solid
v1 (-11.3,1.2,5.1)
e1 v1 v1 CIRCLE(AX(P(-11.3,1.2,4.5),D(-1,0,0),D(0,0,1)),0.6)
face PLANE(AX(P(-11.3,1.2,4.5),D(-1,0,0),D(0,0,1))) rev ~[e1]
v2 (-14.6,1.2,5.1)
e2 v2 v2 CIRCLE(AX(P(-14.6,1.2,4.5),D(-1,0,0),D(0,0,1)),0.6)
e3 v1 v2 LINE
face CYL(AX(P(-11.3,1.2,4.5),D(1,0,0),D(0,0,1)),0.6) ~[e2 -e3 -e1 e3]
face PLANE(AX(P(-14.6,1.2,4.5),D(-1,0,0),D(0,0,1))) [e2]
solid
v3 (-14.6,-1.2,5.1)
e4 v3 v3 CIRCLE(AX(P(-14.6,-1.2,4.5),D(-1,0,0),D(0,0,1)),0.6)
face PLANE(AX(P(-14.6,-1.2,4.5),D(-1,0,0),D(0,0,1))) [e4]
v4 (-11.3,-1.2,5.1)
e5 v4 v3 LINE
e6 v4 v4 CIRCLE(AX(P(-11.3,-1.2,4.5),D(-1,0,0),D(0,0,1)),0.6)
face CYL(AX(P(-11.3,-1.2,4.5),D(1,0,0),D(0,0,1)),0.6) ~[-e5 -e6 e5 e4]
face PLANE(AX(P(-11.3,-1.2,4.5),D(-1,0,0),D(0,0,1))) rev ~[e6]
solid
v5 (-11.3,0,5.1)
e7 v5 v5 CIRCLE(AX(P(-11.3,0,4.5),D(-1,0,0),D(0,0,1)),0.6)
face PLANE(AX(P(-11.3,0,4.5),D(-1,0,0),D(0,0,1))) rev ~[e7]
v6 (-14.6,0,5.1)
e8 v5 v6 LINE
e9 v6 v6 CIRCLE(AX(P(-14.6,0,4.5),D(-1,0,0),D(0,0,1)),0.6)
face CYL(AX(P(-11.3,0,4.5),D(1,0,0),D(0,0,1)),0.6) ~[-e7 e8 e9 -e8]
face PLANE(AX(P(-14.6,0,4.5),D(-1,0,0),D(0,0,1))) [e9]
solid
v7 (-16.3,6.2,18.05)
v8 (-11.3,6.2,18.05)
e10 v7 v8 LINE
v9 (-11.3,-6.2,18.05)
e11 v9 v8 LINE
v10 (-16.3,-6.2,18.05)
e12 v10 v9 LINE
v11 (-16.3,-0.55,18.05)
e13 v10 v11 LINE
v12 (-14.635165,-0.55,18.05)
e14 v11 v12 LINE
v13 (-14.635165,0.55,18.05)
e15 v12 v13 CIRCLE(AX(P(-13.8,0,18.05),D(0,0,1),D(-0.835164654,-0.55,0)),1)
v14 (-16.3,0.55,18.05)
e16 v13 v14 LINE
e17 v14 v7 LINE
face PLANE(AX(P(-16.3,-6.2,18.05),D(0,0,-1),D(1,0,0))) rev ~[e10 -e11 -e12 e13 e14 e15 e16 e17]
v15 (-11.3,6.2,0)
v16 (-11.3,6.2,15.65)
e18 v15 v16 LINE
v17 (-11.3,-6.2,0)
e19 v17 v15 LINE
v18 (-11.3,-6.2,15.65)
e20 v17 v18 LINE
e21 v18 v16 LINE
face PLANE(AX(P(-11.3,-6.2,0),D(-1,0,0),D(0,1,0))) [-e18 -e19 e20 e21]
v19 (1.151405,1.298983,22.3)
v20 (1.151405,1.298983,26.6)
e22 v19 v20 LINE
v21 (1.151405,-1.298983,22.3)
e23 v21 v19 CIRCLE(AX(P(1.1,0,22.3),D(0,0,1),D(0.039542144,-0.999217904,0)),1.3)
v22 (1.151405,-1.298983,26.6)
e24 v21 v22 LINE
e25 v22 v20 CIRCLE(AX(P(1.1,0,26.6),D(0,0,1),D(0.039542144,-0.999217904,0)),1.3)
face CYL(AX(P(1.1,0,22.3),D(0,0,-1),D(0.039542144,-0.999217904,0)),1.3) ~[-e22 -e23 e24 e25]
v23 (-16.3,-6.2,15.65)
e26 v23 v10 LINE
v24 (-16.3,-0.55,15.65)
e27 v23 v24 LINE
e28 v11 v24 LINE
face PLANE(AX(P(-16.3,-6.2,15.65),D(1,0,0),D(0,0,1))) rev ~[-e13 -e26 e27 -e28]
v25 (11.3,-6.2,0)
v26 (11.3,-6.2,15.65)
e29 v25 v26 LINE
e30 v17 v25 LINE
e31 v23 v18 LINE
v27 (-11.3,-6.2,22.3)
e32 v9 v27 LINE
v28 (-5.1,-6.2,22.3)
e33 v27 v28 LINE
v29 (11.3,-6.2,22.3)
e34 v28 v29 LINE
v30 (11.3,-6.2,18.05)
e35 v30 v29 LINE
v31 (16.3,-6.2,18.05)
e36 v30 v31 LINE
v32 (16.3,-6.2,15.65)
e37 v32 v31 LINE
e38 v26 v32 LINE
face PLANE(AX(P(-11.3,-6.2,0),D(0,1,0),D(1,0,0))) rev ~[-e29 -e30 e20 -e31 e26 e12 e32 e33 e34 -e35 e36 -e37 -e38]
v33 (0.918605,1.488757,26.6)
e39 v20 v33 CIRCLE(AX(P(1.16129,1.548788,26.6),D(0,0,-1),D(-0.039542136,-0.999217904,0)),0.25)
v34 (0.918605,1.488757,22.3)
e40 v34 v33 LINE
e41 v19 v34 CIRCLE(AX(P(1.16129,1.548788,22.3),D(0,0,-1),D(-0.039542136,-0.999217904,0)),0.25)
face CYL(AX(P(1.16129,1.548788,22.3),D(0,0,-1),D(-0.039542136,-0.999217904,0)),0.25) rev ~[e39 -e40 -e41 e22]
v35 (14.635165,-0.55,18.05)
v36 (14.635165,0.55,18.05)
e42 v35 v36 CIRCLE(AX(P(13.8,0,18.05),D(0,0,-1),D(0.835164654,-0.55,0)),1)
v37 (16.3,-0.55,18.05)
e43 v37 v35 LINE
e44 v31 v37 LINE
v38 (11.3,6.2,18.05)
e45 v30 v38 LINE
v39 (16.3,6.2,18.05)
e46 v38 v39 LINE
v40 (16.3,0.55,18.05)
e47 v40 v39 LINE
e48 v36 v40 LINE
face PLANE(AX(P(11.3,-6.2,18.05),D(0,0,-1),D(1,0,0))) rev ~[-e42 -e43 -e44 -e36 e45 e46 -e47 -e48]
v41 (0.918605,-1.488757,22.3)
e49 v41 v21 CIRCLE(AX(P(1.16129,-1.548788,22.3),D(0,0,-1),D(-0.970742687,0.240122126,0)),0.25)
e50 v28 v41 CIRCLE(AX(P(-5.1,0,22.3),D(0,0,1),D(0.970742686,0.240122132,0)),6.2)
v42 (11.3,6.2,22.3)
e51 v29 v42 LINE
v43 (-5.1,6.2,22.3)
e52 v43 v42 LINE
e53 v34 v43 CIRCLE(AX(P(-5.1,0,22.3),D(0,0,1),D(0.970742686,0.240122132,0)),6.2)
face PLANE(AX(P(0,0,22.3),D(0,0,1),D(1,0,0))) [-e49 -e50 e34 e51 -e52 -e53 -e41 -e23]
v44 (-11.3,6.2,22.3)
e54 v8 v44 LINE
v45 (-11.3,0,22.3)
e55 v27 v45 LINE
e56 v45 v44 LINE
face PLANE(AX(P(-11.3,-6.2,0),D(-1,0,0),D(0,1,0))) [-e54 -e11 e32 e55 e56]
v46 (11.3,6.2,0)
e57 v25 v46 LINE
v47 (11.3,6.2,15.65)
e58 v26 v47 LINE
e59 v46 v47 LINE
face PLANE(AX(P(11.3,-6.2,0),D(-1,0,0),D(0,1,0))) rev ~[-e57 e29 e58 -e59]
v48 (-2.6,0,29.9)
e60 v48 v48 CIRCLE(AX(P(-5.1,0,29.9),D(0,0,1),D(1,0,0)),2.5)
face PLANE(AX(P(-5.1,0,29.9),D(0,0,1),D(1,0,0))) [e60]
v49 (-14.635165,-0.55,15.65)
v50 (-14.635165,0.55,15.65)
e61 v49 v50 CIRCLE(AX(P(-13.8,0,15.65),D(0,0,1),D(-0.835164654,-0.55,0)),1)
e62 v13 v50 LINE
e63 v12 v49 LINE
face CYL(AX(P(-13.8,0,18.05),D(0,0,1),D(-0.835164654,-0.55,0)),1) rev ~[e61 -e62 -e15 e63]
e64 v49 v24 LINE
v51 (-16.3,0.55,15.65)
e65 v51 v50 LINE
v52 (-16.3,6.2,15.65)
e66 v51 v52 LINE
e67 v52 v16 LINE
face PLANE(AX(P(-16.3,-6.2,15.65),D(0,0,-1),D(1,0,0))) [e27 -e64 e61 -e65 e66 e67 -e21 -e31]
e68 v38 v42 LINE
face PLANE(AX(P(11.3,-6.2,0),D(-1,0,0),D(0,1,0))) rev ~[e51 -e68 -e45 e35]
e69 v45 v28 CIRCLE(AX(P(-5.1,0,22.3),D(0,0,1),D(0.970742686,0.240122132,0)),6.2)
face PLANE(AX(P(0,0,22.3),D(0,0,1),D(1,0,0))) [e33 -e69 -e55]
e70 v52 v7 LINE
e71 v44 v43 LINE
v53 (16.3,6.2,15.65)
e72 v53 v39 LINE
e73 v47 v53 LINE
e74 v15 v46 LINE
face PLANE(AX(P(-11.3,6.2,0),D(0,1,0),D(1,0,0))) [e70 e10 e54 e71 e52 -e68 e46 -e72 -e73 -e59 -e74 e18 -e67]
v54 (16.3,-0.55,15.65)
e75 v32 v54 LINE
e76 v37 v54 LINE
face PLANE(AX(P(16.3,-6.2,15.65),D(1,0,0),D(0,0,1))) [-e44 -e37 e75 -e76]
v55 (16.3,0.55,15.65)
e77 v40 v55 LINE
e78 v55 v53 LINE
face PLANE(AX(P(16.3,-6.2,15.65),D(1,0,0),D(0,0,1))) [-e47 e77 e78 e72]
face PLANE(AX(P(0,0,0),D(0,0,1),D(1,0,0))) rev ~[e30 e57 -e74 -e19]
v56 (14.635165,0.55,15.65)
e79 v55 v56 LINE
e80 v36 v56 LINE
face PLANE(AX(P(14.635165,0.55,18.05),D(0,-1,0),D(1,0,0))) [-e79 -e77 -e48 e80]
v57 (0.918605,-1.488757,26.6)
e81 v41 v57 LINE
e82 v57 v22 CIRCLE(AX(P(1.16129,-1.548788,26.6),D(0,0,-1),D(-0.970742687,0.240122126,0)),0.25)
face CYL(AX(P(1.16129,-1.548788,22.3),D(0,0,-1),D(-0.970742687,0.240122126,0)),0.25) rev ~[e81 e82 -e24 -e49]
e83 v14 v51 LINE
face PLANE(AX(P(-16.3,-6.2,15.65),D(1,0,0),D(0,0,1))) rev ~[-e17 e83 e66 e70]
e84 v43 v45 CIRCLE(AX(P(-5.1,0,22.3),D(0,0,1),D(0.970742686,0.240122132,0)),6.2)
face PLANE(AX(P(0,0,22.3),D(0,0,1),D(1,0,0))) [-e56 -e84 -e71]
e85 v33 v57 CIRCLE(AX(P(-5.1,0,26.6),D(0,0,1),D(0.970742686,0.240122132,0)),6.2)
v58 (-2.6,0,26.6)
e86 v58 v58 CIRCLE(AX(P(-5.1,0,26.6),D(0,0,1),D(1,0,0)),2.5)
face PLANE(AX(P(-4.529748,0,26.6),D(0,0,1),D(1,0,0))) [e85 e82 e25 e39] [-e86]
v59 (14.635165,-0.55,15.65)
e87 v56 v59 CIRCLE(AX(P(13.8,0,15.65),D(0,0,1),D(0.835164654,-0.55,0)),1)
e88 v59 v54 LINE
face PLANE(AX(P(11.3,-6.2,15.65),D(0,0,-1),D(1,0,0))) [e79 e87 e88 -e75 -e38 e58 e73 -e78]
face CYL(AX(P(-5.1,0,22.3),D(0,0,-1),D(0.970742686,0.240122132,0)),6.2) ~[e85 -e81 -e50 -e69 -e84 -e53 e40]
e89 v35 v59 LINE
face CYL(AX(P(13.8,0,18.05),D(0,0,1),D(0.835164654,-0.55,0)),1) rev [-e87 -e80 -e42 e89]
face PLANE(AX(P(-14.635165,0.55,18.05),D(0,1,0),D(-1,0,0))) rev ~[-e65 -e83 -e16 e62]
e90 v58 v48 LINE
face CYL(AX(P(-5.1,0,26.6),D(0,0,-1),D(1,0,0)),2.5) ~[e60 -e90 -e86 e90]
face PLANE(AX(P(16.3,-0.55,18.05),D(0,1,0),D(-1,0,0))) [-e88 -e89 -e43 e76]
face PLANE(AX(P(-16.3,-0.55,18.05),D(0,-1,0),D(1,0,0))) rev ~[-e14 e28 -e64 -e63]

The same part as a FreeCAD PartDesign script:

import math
import FreeCAD as App
import Part
import Sketcher

doc = App.newDocument("Part")
body = doc.addObject("PartDesign::Body", "Body")

sketch1 = body.newObject("Sketcher::SketchObject", "Sketch")
sketch1.AttachmentSupport = (doc.getObject("XY_Plane"), [""])
sketch1.MapMode = "FlatFace"
sketch1.addGeometry([
    Part.LineSegment(App.Vector(-11, 6, 0), App.Vector(-11, -6, 0)),
    Part.LineSegment(App.Vector(-11, -6, 0), App.Vector(11, -6, 0)),
    Part.LineSegment(App.Vector(11, -6, 0), App.Vector(11, 6, 0)),
    Part.LineSegment(App.Vector(11, 6, 0), App.Vector(-11, 6, 0)),
], False)
sketch1.addConstraint([
    Sketcher.Constraint("Coincident", 0, 2, 1, 1),
    Sketcher.Constraint("Coincident", 1, 2, 2, 1),
    Sketcher.Constraint("Coincident", 2, 2, 3, 1),
    Sketcher.Constraint("Coincident", 3, 2, 0, 1),
    Sketcher.Constraint("Vertical", 0),
    Sketcher.Constraint("Horizontal", 1),
    Sketcher.Constraint("Vertical", 2),
    Sketcher.Constraint("Horizontal", 3),
    Sketcher.Constraint("Symmetric", 0, 2, 2, 2, -1, 1),
    Sketcher.Constraint("DistanceX", 1, 1, 1, 2, 22.6),
    Sketcher.Constraint("DistanceY", 0, 2, 0, 1, 12.4),
])
pad1 = body.newObject("PartDesign::Pad", "Pad")
pad1.Profile = sketch1
pad1.Length = 22.3

sketch2 = body.newObject("Sketcher::SketchObject", "Sketch001")
sketch2.AttachmentSupport = (doc.getObject("XZ_Plane"), [""])
sketch2.MapMode = "FlatFace"
sketch2.AttachmentOffset = App.Placement(App.Vector(0, 0, 6.2), App.Rotation())
sketch2.addGeometry([
    Part.LineSegment(App.Vector(11.3, 18.1, 0), App.Vector(11.3, 15.7, 0)),
    Part.LineSegment(App.Vector(11.3, 15.7, 0), App.Vector(16.3, 15.7, 0)),
    Part.LineSegment(App.Vector(16.3, 15.7, 0), App.Vector(16.3, 18.1, 0)),
    Part.LineSegment(App.Vector(16.3, 18.1, 0), App.Vector(11.3, 18.1, 0)),
    Part.LineSegment(App.Vector(-16.3, 18.1, 0), App.Vector(-16.3, 15.7, 0)),
    Part.LineSegment(App.Vector(-16.3, 15.7, 0), App.Vector(-11.3, 15.7, 0)),
    Part.LineSegment(App.Vector(-11.3, 15.7, 0), App.Vector(-11.3, 18.1, 0)),
    Part.LineSegment(App.Vector(-11.3, 18.1, 0), App.Vector(-16.3, 18.1, 0)),
], False)
sketch2.addConstraint([
    Sketcher.Constraint("Coincident", 0, 2, 1, 1),
    Sketcher.Constraint("Coincident", 1, 2, 2, 1),
    Sketcher.Constraint("Coincident", 2, 2, 3, 1),
    Sketcher.Constraint("Coincident", 3, 2, 0, 1),
    Sketcher.Constraint("Coincident", 4, 2, 5, 1),
    Sketcher.Constraint("Coincident", 5, 2, 6, 1),
    Sketcher.Constraint("Coincident", 6, 2, 7, 1),
    Sketcher.Constraint("Coincident", 7, 2, 4, 1),
    Sketcher.Constraint("Vertical", 0),
    Sketcher.Constraint("Horizontal", 1),
    Sketcher.Constraint("Vertical", 2),
    Sketcher.Constraint("Horizontal", 3),
    Sketcher.Constraint("Vertical", 4),
    Sketcher.Constraint("Horizontal", 5),
    Sketcher.Constraint("Vertical", 6),
    Sketcher.Constraint("Horizontal", 7),
    Sketcher.Constraint("Symmetric", 1, 2, 4, 2, -2),
    Sketcher.Constraint("Symmetric", 3, 2, 6, 2, -2),
    Sketcher.Constraint("DistanceX", 1, 1, 1, 2, 5.0),
    Sketcher.Constraint("DistanceY", 0, 2, 0, 1, 2.4),
    Sketcher.Constraint("DistanceX", -1, 1, 0, 2, 11.3),
    Sketcher.Constraint("DistanceY", -1, 1, 0, 2, 15.65),
])
pad2 = body.newObject("PartDesign::Pad", "Pad001")
pad2.Profile = sketch2
pad2.Length = 12.4
pad2.Reversed = True

sketch3 = body.newObject("Sketcher::SketchObject", "Sketch002")
sketch3.AttachmentSupport = (doc.getObject("XY_Plane"), [""])
sketch3.MapMode = "FlatFace"
sketch3.AttachmentOffset = App.Placement(App.Vector(0, 0, 18.05), App.Rotation())
sketch3.addGeometry([
    Part.LineSegment(App.Vector(16.3, 0.6, 0), App.Vector(14.6, 0.6, 0)),
    Part.ArcOfCircle(Part.Circle(App.Vector(13.8, 0, 0), App.Vector(0, 0, 1), 1), math.radians(33), math.radians(327)),
    Part.LineSegment(App.Vector(14.6, -0.6, 0), App.Vector(16.3, -0.6, 0)),
    Part.LineSegment(App.Vector(16.3, -0.6, 0), App.Vector(16.3, 0.6, 0)),
    Part.LineSegment(App.Vector(-16.3, -0.6, 0), App.Vector(-14.6, -0.6, 0)),
    Part.ArcOfCircle(Part.Circle(App.Vector(-13.8, 0, 0), App.Vector(0, 0, 1), 1), math.radians(-147), math.radians(147)),
    Part.LineSegment(App.Vector(-14.6, 0.6, 0), App.Vector(-16.3, 0.6, 0)),
    Part.LineSegment(App.Vector(-16.3, 0.6, 0), App.Vector(-16.3, -0.6, 0)),
], False)
sketch3.addConstraint([
    Sketcher.Constraint("Coincident", 0, 2, 1, 1),
    Sketcher.Constraint("Coincident", 1, 2, 2, 1),
    Sketcher.Constraint("Coincident", 2, 2, 3, 1),
    Sketcher.Constraint("Coincident", 3, 2, 0, 1),
    Sketcher.Constraint("Coincident", 4, 2, 5, 1),
    Sketcher.Constraint("Coincident", 5, 2, 6, 1),
    Sketcher.Constraint("Coincident", 6, 2, 7, 1),
    Sketcher.Constraint("Coincident", 7, 2, 4, 1),
    Sketcher.Constraint("Horizontal", 0),
    Sketcher.Constraint("Horizontal", 2),
    Sketcher.Constraint("Vertical", 3),
    Sketcher.Constraint("Horizontal", 4),
    Sketcher.Constraint("Horizontal", 6),
    Sketcher.Constraint("Vertical", 7),
    Sketcher.Constraint("Equal", 1, 5),
    Sketcher.Constraint("Symmetric", 1, 3, 5, 3, -1, 1),
    Sketcher.Constraint("Symmetric", 2, 2, 6, 2, -1, 1),
    Sketcher.Constraint("Symmetric", 1, 2, 4, 2, -2),
    Sketcher.Constraint("Horizontal", 3, 2, 5, 2),
    Sketcher.Constraint("Radius", 1, 1.0),
    Sketcher.Constraint("DistanceY", 3, 1, 3, 2, 1.1),
    Sketcher.Constraint("DistanceX", -1, 1, 1, 3, 13.8),
    Sketcher.Constraint("DistanceX", -1, 1, 2, 2, 16.3),
])
pocket1 = body.newObject("PartDesign::Pocket", "Pocket")
pocket1.Profile = sketch3
pocket1.Length = 22.3

sketch4 = body.newObject("Sketcher::SketchObject", "Sketch003")
sketch4.AttachmentSupport = (doc.getObject("XY_Plane"), [""])
sketch4.MapMode = "FlatFace"
sketch4.AttachmentOffset = App.Placement(App.Vector(0, 0, 22.3), App.Rotation())
sketch4.addGeometry([
    Part.ArcOfCircle(Part.Circle(App.Vector(-5.1, 0, 0), App.Vector(0, 0, 1), 6.2), math.radians(14), math.radians(346)),
    Part.ArcOfCircle(Part.Circle(App.Vector(1.16, -1.55, 0), App.Vector(0, 0, 1), 0.25), math.radians(92), math.radians(166)),
    Part.ArcOfCircle(Part.Circle(App.Vector(1.1, 0, 0), App.Vector(0, 0, 1), 1.3), math.radians(-88), math.radians(88)),
    Part.ArcOfCircle(Part.Circle(App.Vector(1.16, 1.55, 0), App.Vector(0, 0, 1), 0.25), math.radians(-166), math.radians(-92)),
], False)
sketch4.addConstraint([
    Sketcher.Constraint("Tangent", 0, 2, 1, 2),
    Sketcher.Constraint("Tangent", 1, 1, 2, 1),
    Sketcher.Constraint("Tangent", 2, 2, 3, 2),
    Sketcher.Constraint("Tangent", 3, 1, 0, 1),
    Sketcher.Constraint("Equal", 1, 3),
    Sketcher.Constraint("Symmetric", 1, 3, 3, 3, -1),
    Sketcher.Constraint("Radius", 0, 6.2),
    Sketcher.Constraint("Radius", 2, 1.3),
    Sketcher.Constraint("Radius", 1, 0.25),
    Sketcher.Constraint("DistanceX", 0, 3, -1, 1, 5.1),
    Sketcher.Constraint("DistanceX", -1, 1, 2, 3, 1.1),
])
pad3 = body.newObject("PartDesign::Pad", "Pad002")
pad3.Profile = sketch4
pad3.Length = 4.3

sketch5 = body.newObject("Sketcher::SketchObject", "Sketch004")
sketch5.AttachmentSupport = (doc.getObject("XY_Plane"), [""])
sketch5.MapMode = "FlatFace"
sketch5.AttachmentOffset = App.Placement(App.Vector(0, 0, 26.6), App.Rotation())
sketch5.addGeometry(Part.Circle(App.Vector(-5.1, 0, 0), App.Vector(0, 0, 1), 2.5), False)
sketch5.addConstraint([
    Sketcher.Constraint("PointOnObject", 0, 3, -1),
    Sketcher.Constraint("Diameter", 0, 5.0),
    Sketcher.Constraint("DistanceX", 0, 3, -1, 1, 5.1),
])
pad4 = body.newObject("PartDesign::Pad", "Pad003")
pad4.Profile = sketch5
pad4.Length = 3.3
body2 = doc.addObject("PartDesign::Body", "Body001")

sketch6 = body2.newObject("Sketcher::SketchObject", "Sketch005")
sketch6.AttachmentSupport = (doc.getObject("YZ_Plane001"), [""])
sketch6.MapMode = "FlatFace"
sketch6.AttachmentOffset = App.Placement(App.Vector(0, 0, -11.3), App.Rotation())
sketch6.addGeometry(Part.Circle(App.Vector(1.2, 4.5, 0), App.Vector(0, 0, 1), 0.6), False)
sketch6.addConstraint([
    Sketcher.Constraint("Diameter", 0, 1.2),
    Sketcher.Constraint("DistanceX", -1, 1, 0, 3, 1.2),
    Sketcher.Constraint("DistanceY", -1, 1, 0, 3, 4.5),
])
pad5 = body2.newObject("PartDesign::Pad", "Pad004")
pad5.Profile = sketch6
pad5.Length = 3.3
pad5.Reversed = True
body3 = doc.addObject("PartDesign::Body", "Body002")

sketch7 = body3.newObject("Sketcher::SketchObject", "Sketch006")
sketch7.AttachmentSupport = (doc.getObject("YZ_Plane002"), [""])
sketch7.MapMode = "FlatFace"
sketch7.AttachmentOffset = App.Placement(App.Vector(0, 0, -11.3), App.Rotation())
sketch7.addGeometry(Part.Circle(App.Vector(0, 4.5, 0), App.Vector(0, 0, 1), 0.6), False)
sketch7.addConstraint([
    Sketcher.Constraint("PointOnObject", 0, 3, -2),
    Sketcher.Constraint("Diameter", 0, 1.2),
    Sketcher.Constraint("DistanceY", -1, 1, 0, 3, 4.5),
])
pad6 = body3.newObject("PartDesign::Pad", "Pad005")
pad6.Profile = sketch7
pad6.Length = 3.3
pad6.Reversed = True
body4 = doc.addObject("PartDesign::Body", "Body003")

sketch8 = body4.newObject("Sketcher::SketchObject", "Sketch007")
sketch8.AttachmentSupport = (doc.getObject("YZ_Plane003"), [""])
sketch8.MapMode = "FlatFace"
sketch8.AttachmentOffset = App.Placement(App.Vector(0, 0, -11.3), App.Rotation())
sketch8.addGeometry(Part.Circle(App.Vector(-1.2, 4.5, 0), App.Vector(0, 0, 1), 0.6), False)
sketch8.addConstraint([
    Sketcher.Constraint("Diameter", 0, 1.2),
    Sketcher.Constraint("DistanceX", 0, 3, -1, 1, 1.2),
    Sketcher.Constraint("DistanceY", -1, 1, 0, 3, 4.5),
])
pad7 = body4.newObject("PartDesign::Pad", "Pad006")
pad7.Profile = sketch8
pad7.Length = 3.3
pad7.Reversed = True

doc.recompute()
